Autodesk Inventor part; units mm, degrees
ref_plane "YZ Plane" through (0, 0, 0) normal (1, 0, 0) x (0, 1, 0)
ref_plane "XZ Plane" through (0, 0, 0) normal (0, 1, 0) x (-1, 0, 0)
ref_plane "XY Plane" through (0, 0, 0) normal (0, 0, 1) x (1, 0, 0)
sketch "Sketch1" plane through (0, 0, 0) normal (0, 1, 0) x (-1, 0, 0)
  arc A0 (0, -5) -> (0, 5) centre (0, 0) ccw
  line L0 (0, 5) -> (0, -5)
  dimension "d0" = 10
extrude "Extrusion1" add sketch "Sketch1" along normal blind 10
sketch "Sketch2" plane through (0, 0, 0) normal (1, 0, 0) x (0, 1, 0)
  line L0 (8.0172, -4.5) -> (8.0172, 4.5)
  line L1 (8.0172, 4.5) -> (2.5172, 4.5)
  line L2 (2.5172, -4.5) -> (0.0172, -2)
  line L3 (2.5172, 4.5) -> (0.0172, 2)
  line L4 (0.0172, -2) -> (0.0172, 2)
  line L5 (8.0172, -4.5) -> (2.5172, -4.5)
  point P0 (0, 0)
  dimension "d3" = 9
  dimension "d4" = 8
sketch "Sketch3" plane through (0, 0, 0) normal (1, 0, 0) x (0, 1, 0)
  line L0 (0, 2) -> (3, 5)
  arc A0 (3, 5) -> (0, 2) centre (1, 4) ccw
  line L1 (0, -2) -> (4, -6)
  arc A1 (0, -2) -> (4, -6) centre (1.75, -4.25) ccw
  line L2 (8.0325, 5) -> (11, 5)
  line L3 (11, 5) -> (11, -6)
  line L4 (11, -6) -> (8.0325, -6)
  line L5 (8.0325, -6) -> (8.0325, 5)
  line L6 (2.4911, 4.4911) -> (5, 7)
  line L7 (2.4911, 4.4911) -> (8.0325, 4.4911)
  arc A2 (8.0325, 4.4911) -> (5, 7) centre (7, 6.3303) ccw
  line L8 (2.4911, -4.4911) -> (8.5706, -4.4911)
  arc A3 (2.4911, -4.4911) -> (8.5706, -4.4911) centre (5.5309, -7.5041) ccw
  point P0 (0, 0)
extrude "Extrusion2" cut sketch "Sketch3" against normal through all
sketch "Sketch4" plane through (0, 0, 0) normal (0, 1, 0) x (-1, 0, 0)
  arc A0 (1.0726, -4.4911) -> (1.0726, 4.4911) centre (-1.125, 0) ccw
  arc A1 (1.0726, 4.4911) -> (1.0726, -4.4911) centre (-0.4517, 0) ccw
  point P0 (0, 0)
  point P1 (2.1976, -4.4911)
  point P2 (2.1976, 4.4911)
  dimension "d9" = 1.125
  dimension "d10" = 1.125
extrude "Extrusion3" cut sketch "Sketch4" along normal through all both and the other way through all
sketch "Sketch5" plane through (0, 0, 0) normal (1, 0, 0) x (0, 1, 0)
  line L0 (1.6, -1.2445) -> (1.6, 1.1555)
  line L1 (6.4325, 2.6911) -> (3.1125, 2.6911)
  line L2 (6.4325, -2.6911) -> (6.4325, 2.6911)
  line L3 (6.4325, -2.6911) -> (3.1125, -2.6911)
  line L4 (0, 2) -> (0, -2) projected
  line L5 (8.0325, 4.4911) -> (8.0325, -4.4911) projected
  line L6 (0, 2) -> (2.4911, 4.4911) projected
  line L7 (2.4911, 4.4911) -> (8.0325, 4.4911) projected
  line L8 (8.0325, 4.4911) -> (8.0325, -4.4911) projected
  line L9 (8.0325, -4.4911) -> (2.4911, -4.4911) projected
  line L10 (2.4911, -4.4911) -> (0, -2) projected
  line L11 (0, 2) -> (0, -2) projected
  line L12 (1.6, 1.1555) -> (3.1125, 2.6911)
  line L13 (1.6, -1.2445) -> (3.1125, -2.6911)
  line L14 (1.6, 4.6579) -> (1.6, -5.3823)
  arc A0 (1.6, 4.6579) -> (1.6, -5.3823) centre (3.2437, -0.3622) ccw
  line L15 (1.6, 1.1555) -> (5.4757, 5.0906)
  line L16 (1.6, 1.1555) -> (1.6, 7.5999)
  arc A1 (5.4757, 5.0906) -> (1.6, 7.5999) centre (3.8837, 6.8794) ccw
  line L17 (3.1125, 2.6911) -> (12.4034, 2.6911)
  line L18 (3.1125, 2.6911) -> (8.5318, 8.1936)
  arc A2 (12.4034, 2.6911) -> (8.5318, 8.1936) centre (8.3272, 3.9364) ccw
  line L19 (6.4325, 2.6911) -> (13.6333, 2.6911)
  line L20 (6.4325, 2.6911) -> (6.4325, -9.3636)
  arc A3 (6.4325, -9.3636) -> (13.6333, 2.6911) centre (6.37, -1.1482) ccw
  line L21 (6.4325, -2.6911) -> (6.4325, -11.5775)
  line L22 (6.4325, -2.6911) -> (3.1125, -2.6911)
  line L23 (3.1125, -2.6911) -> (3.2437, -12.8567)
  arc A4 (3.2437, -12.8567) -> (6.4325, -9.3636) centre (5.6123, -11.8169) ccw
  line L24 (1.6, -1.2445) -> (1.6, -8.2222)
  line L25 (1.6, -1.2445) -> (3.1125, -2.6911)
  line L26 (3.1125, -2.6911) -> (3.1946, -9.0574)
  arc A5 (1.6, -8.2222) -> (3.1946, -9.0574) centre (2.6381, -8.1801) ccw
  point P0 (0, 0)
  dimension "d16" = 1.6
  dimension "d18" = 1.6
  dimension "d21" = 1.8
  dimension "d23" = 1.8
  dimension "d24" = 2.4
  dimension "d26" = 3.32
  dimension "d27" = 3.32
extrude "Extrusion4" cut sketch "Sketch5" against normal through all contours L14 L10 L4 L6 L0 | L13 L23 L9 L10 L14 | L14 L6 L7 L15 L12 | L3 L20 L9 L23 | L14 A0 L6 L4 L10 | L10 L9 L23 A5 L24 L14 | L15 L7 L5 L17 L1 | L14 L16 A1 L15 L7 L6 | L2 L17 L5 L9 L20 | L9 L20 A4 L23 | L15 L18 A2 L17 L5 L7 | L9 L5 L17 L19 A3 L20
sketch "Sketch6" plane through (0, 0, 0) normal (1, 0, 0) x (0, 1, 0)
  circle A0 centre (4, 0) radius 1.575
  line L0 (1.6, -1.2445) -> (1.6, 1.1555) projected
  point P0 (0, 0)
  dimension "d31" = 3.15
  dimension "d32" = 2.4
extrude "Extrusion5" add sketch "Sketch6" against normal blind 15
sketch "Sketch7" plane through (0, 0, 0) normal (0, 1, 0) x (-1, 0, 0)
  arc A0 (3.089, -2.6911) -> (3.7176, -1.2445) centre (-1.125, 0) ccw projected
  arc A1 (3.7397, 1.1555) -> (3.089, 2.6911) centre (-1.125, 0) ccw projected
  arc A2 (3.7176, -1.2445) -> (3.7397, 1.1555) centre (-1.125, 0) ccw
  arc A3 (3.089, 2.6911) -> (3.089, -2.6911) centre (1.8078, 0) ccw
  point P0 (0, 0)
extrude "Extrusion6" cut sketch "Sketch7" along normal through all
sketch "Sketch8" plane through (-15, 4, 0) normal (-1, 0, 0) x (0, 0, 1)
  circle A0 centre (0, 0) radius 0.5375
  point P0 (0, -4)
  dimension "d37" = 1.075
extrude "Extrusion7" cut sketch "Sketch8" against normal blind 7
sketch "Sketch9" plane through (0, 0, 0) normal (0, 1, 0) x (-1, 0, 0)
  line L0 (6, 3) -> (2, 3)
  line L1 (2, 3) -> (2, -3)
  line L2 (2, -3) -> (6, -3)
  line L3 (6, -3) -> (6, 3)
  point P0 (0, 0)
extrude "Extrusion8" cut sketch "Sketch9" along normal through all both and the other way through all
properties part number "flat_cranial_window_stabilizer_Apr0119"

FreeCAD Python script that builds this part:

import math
import FreeCAD as App
import Part
import Sketcher
from FreeCAD import Vector
Q = App.Units.Quantity


def add_polygon(sketch, points):
    """Adds a closed chain of lines whose ends are joined by coincident constraints."""
    first, n = sketch.GeometryCount, len(points)
    for a, b in zip(points, points[1:] + points[:1]):
        sketch.addGeometry(Part.LineSegment(App.Vector(*a, 0), App.Vector(*b, 0)), False)
    for i in range(n):
        sketch.addConstraint(Sketcher.Constraint("Coincident", first + i, 2, first + (i + 1) % n, 1))

doc = App.newDocument("Part")
params = doc.addObject("Spreadsheet::Sheet", "Params")
for row, (alias, value) in enumerate([
    ("sketch1_radius", "5 mm"),
    ("pad1_length", "10 mm"),
    ("sketch2_height", "11 mm"),
    ("sketch2_radius", "4.28 mm"),
    ("sketch3_radius", "5 mm"),
    ("sketch4_height", "2.4 mm"),
    ("sketch4_width", "3.32 mm"),
    ("sketch4_width2", "1.23 mm"),
    ("sketch4_height2", "2.84 mm"),
    ("sketch4_height3", "5.02 mm"),
    ("sketch5_diameter", "3.15 mm"),
    ("pad2_length", "15 mm"),
    ("pocket5_length", "7 mm"),
    ("sketch8_width", "4 mm"),
    ("sketch8_height", "6 mm"),
], start=1):
    params.set(f"A{row}", alias)
    params.set(f"B{row}", "=" + value)
    params.setAlias(f"B{row}", alias)

body = doc.addObject("PartDesign::Body", "Body")

# Sketch on XZ plane
sketch1 = body.newObject("Sketcher::SketchObject", "Sketch")
sketch1.AttachmentSupport = (doc.getObject("XZ_Plane"), [""])
sketch1.MapMode = "FlatFace"
sketch1.addGeometry(Part.LineSegment(Vector(0, 5, 0), Vector(0, -5, 0)), False)
sketch1.addGeometry(Part.ArcOfCircle(Part.Circle(Vector(0, 0, 0), Vector(0, 0, 1), 5), math.radians(90), math.radians(270)), False)
sketch1.addConstraint(Sketcher.Constraint("Coincident", 0, 1, 1, 1))
sketch1.addConstraint(Sketcher.Constraint("Coincident", 1, 2, 0, 2))
sketch1.addConstraint(Sketcher.Constraint("Vertical", 0))
sketch1.addConstraint(Sketcher.Constraint("Coincident", 1, 3, -1, 1))
sketch1.addConstraint(Sketcher.Constraint("PointOnObject", 0, 1, -2))
sketch1.addConstraint(Sketcher.Constraint("Radius", 1, Q("5 mm")))
sketch1.setExpression("Constraints[5]", "Params.sketch1_radius")
pad1 = body.newObject("PartDesign::Pad", "Pad")
pad1.Profile = sketch1
pad1.setExpression("Length", "Params.pad1_length")
pad1.Reversed = True

# Sketch on YZ plane
sketch2 = body.newObject("Sketcher::SketchObject", "Sketch001")
sketch2.AttachmentSupport = (doc.getObject("YZ_Plane"), [""])
sketch2.MapMode = "FlatFace"
sketch2.addGeometry(Part.ArcOfCircle(Part.Circle(Vector(1, 4, 0), Vector(0, 0, 1), 2.2), math.radians(27), math.radians(243)), False)
sketch2.addGeometry(Part.LineSegment(Vector(0, 2, 0), Vector(2.5, 4.5, 0)), False)
sketch2.addGeometry(Part.LineSegment(Vector(2.5, 4.5, 0), Vector(8, 4.5, 0)), False)
sketch2.addGeometry(Part.LineSegment(Vector(8, 4.5, 0), Vector(8, -4.5, 0)), False)
sketch2.addGeometry(Part.LineSegment(Vector(8, -4.5, 0), Vector(2.5, -4.5, 0)), False)
sketch2.addGeometry(Part.LineSegment(Vector(2.5, -4.5, 0), Vector(0, -2, 0)), False)
sketch2.addGeometry(Part.ArcOfCircle(Part.Circle(Vector(1.8, -4.2, 0), Vector(0, 0, 1), 2.9), math.radians(128), math.radians(260)), False)
sketch2.addGeometry(Part.ArcOfCircle(Part.Circle(Vector(5.5, -7.5, 0), Vector(0, 0, 1), 4.3), math.radians(174), math.radians(381)), False)
sketch2.addGeometry(Part.LineSegment(Vector(9.5, -6, 0), Vector(11, -6, 0)), False)
sketch2.addGeometry(Part.LineSegment(Vector(11, -6, 0), Vector(11, 5, 0)), False)
sketch2.addGeometry(Part.LineSegment(Vector(11, 5, 0), Vector(8.6, 5, 0)), False)
sketch2.addGeometry(Part.ArcOfCircle(Part.Circle(Vector(7, 6.3, 0), Vector(0, 0, 1), 2.1), math.radians(-39), math.radians(161)), False)
sketch2.addGeometry(Part.LineSegment(Vector(5, 7, 0), Vector(3, 5, 0)), False)
sketch2.addConstraint(Sketcher.Constraint("Coincident", 0, 2, 1, 1))
sketch2.addConstraint(Sketcher.Constraint("Coincident", 1, 2, 2, 1))
sketch2.addConstraint(Sketcher.Constraint("Coincident", 2, 2, 3, 1))
sketch2.addConstraint(Sketcher.Constraint("Coincident", 3, 2, 4, 1))
sketch2.addConstraint(Sketcher.Constraint("Coincident", 4, 2, 5, 1))
sketch2.addConstraint(Sketcher.Constraint("Coincident", 5, 2, 6, 1))
sketch2.addConstraint(Sketcher.Constraint("Coincident", 6, 2, 7, 1))
sketch2.addConstraint(Sketcher.Constraint("Coincident", 7, 2, 8, 1))
sketch2.addConstraint(Sketcher.Constraint("Coincident", 8, 2, 9, 1))
sketch2.addConstraint(Sketcher.Constraint("Coincident", 9, 2, 10, 1))
sketch2.addConstraint(Sketcher.Constraint("Coincident", 10, 2, 11, 1))
sketch2.addConstraint(Sketcher.Constraint("Coincident", 11, 2, 12, 1))
sketch2.addConstraint(Sketcher.Constraint("Coincident", 12, 2, 0, 1))
sketch2.addConstraint(Sketcher.Constraint("Horizontal", 2))
sketch2.addConstraint(Sketcher.Constraint("Vertical", 3))
sketch2.addConstraint(Sketcher.Constraint("Horizontal", 4))
sketch2.addConstraint(Sketcher.Constraint("Horizontal", 8))
sketch2.addConstraint(Sketcher.Constraint("Vertical", 9))
sketch2.addConstraint(Sketcher.Constraint("Horizontal", 10))
sketch2.addConstraint(Sketcher.Constraint("Symmetric", 0, 2, 5, 2, -1, 1))
sketch2.addConstraint(Sketcher.Constraint("Symmetric", 1, 2, 4, 2, -1))
sketch2.addConstraint(Sketcher.Constraint("PointOnObject", 0, 2, -2))
sketch2.addConstraint(Sketcher.Constraint("Perpendicular", 1, 5))
sketch2.addConstraint(Sketcher.Constraint("Perpendicular", 5, 12))
sketch2.addConstraint(Sketcher.Constraint("Horizontal", 10, 2, 12, 2))
sketch2.addConstraint(Sketcher.Constraint("DistanceY", 9, 1, 9, 2, Q("11 mm")))
sketch2.addConstraint(Sketcher.Constraint("Radius", 7, Q("4.28 mm")))
sketch2.addConstraint(Sketcher.Constraint("DistanceX", -1, 1, 0, 3, Q("1 mm")))
sketch2.addConstraint(Sketcher.Constraint("DistanceY", -1, 1, 0, 3, Q("4 mm")))
sketch2.addConstraint(Sketcher.Constraint("DistanceX", -1, 1, 11, 3, Q("7 mm")))
sketch2.addConstraint(Sketcher.Constraint("DistanceY", -1, 1, 0, 2, Q("2 mm")))
sketch2.addConstraint(Sketcher.Constraint("DistanceY", 7, 2, -1, 1, Q("6 mm")))
sketch2.addConstraint(Sketcher.Constraint("DistanceX", -1, 1, 8, 2, Q("11 mm")))
sketch2.addConstraint(Sketcher.Constraint("DistanceX", -1, 1, 11, 2, Q("5 mm")))
sketch2.addConstraint(Sketcher.Constraint("Radius", 6, Q("2.8504 mm")))
sketch2.addConstraint(Sketcher.Constraint("Radius", 11, Q("2.1092 mm")))
sketch2.addConstraint(Sketcher.Constraint("DistanceX", -1, 1, 6, 3, Q("1.75 mm")))
sketch2.addConstraint(Sketcher.Constraint("Distance", 1, Q("3.523 mm")))
sketch2.addConstraint(Sketcher.Constraint("DistanceX", 2, 1, 2, 2, Q("5.5414 mm")))
sketch2.addConstraint(Sketcher.Constraint("DistanceX", 8, 1, 8, 2, Q("1.4622 mm")))
sketch2.addConstraint(Sketcher.Constraint("DistanceX", -1, 1, 7, 3, Q("5.531 mm")))
sketch2.setExpression("Constraints[25]", "Params.sketch2_height")
sketch2.setExpression("Constraints[26]", "Params.sketch2_radius")
pocket1 = body.newObject("PartDesign::Pocket", "Pocket")
pocket1.Profile = sketch2
pocket1.Type = "ThroughAll"

# Sketch on XZ plane
sketch3 = body.newObject("Sketcher::SketchObject", "Sketch002")
sketch3.AttachmentSupport = (doc.getObject("XZ_Plane"), [""])
sketch3.MapMode = "FlatFace"
sketch3.addGeometry(Part.ArcOfCircle(Part.Circle(Vector(0.5, 0, 0), Vector(0, 0, 1), 4.7), math.radians(-109), math.radians(109)), False)
sketch3.addGeometry(Part.ArcOfCircle(Part.Circle(Vector(1.1, 0, 0), Vector(0, 0, 1), 5), math.radians(116), math.radians(244)), False)
sketch3.addConstraint(Sketcher.Constraint("Coincident", 0, 1, 1, 2))
sketch3.addConstraint(Sketcher.Constraint("Coincident", 1, 1, 0, 2))
sketch3.addConstraint(Sketcher.Constraint("Symmetric", 0, 1, 1, 1, -1))
sketch3.addConstraint(Sketcher.Constraint("Radius", 1, Q("5 mm")))
sketch3.addConstraint(Sketcher.Constraint("DistanceX", -1, 1, 1, 3, Q("1.125 mm")))
sketch3.addConstraint(Sketcher.Constraint("Radius", 0, Q("4.7427 mm")))
sketch3.addConstraint(Sketcher.Constraint("DistanceY", 0, 1, -1, 1, Q("4.491 mm")))
sketch3.setExpression("Constraints[3]", "Params.sketch3_radius")
pocket2 = body.newObject("PartDesign::Pocket", "Pocket001")
pocket2.Profile = sketch3
pocket2.Type = "ThroughAll"

# Sketch on YZ plane
sketch4 = body.newObject("Sketcher::SketchObject", "Sketch003")
sketch4.AttachmentSupport = (doc.getObject("YZ_Plane"), [""])
sketch4.MapMode = "FlatFace"
sketch4.addGeometry(Part.ArcOfCircle(Part.Circle(Vector(3.2, -0.4, 0), Vector(0, 0, 1), 5.3), math.radians(108), math.radians(252)), False)  # 0
sketch4.addGeometry(Part.LineSegment(Vector(1.6, -5.4, 0), Vector(1.6, -8.2, 0)), False)  # 1
sketch4.addGeometry(Part.ArcOfCircle(Part.Circle(Vector(2.6, -8.2, 0), Vector(0, 0, 1), 1), math.radians(-178), math.radians(-58)), False)  # 2
sketch4.addGeometry(Part.LineSegment(Vector(3.2, -9.1, 0), Vector(3.2, -12.9, 0)), False)  # 3
sketch4.addGeometry(Part.ArcOfCircle(Part.Circle(Vector(5.6, -11.8, 0), Vector(0, 0, 1), 2.6), math.radians(-156), math.radians(72)), False)  # 4
sketch4.addGeometry(Part.ArcOfCircle(Part.Circle(Vector(6.4, -1.1, 0), Vector(0, 0, 1), 8.2), math.radians(-90), math.radians(28)), False)  # 5
sketch4.addGeometry(Part.LineSegment(Vector(13.6, 2.7, 0), Vector(12.4, 2.7, 0)), False)  # 6
sketch4.addGeometry(Part.ArcOfCircle(Part.Circle(Vector(8.3, 3.9, 0), Vector(0, 0, 1), 4.3), math.radians(-17), math.radians(87)), False)  # 7
sketch4.addGeometry(Part.LineSegment(Vector(8.5, 8.2, 0), Vector(5.5, 5.1, 0)), False)  # 8
sketch4.addGeometry(Part.ArcOfCircle(Part.Circle(Vector(3.9, 6.9, 0), Vector(0, 0, 1), 2.4), math.radians(-48), math.radians(162)), False)  # 9
sketch4.addGeometry(Part.LineSegment(Vector(1.6, 7.6, 0), Vector(1.6, 4.7, 0)), False)  # 10
add_polygon(sketch4, [(1.6, -1.2), (1.6, 1.2), (3.1, 2.7), (6.4, 2.7), (6.4, -2.7), (3.1, -2.7)])  # lines 11-16
sketch4.addConstraint(Sketcher.Constraint("Coincident", 0, 2, 1, 1))
sketch4.addConstraint(Sketcher.Constraint("Coincident", 1, 2, 2, 1))
sketch4.addConstraint(Sketcher.Constraint("Coincident", 2, 2, 3, 1))
sketch4.addConstraint(Sketcher.Constraint("Coincident", 3, 2, 4, 1))
sketch4.addConstraint(Sketcher.Constraint("Coincident", 4, 2, 5, 1))
sketch4.addConstraint(Sketcher.Constraint("Coincident", 5, 2, 6, 1))
sketch4.addConstraint(Sketcher.Constraint("Coincident", 6, 2, 7, 1))
sketch4.addConstraint(Sketcher.Constraint("Coincident", 7, 2, 8, 1))
sketch4.addConstraint(Sketcher.Constraint("Coincident", 8, 2, 9, 1))
sketch4.addConstraint(Sketcher.Constraint("Coincident", 9, 2, 10, 1))
sketch4.addConstraint(Sketcher.Constraint("Coincident", 10, 2, 0, 1))
sketch4.addConstraint(Sketcher.Constraint("Vertical", 1))
sketch4.addConstraint(Sketcher.Constraint("Horizontal", 6))
sketch4.addConstraint(Sketcher.Constraint("Vertical", 10))
sketch4.addConstraint(Sketcher.Constraint("Vertical", 11))
sketch4.addConstraint(Sketcher.Constraint("Horizontal", 13))
sketch4.addConstraint(Sketcher.Constraint("Vertical", 14))
sketch4.addConstraint(Sketcher.Constraint("Horizontal", 15))
sketch4.addConstraint(Sketcher.Constraint("Symmetric", 12, 2, 15, 2, -1))
sketch4.addConstraint(Sketcher.Constraint("Parallel", 8, 12))
sketch4.addConstraint(Sketcher.Constraint("Horizontal", 6, 2, 12, 2))
sketch4.addConstraint(Sketcher.Constraint("Vertical", 0, 3, 3, 2))
sketch4.addConstraint(Sketcher.Constraint("Vertical", 1, 2, 9, 2))
sketch4.addConstraint(Sketcher.Constraint("Vertical", 10, 2, 11, 2))
sketch4.addConstraint(Sketcher.Constraint("Vertical", 4, 2, 13, 2))
sketch4.addConstraint(Sketcher.Constraint("DistanceY", 11, 1, 11, 2, Q("2.4 mm")))
sketch4.addConstraint(Sketcher.Constraint("DistanceX", 13, 1, 13, 2, Q("3.32 mm")))
sketch4.addConstraint(Sketcher.Constraint("DistanceX", -1, 1, 0, 2, Q("1.6 mm")))
sketch4.addConstraint(Sketcher.Constraint("Radius", 2, Q("1.039 mm")))
sketch4.addConstraint(Sketcher.Constraint("DistanceX", 6, 2, 6, 1, Q("1.23 mm")))
sketch4.addConstraint(Sketcher.Constraint("DistanceY", 1, 2, 1, 1, Q("2.84 mm")))
sketch4.addConstraint(Sketcher.Constraint("DistanceY", -1, 1, 9, 2, Q("7.6 mm")))
sketch4.addConstraint(Sketcher.Constraint("Angle", 3, Q("-89.2606 deg")))
sketch4.addConstraint(Sketcher.Constraint("Radius", 0, Q("5.2823 mm")))
sketch4.addConstraint(Sketcher.Constraint("Radius", 4, Q("2.5868 mm")))
sketch4.addConstraint(Sketcher.Constraint("Radius", 5, Q("8.2156 mm")))
sketch4.addConstraint(Sketcher.Constraint("Radius", 7, Q("4.2622 mm")))
sketch4.addConstraint(Sketcher.Constraint("Radius", 9, Q("2.3946 mm")))
sketch4.addConstraint(Sketcher.Constraint("DistanceY", 12, 2, 8, 2, Q("2.3995 mm")))
sketch4.addConstraint(Sketcher.Constraint("DistanceY", 10, 2, 10, 1, Q("2.942 mm")))
sketch4.addConstraint(Sketcher.Constraint("DistanceY", 2, 3, -1, 1, Q("8.18 mm")))
sketch4.addConstraint(Sketcher.Constraint("DistanceX", -1, 1, 5, 3, Q("6.37 mm")))
sketch4.addConstraint(Sketcher.Constraint("DistanceX", 0, 3, 9, 3, Q("0.64 mm")))
sketch4.addConstraint(Sketcher.Constraint("DistanceY", 0, 2, 0, 3, Q("5.02 mm")))
sketch4.addConstraint(Sketcher.Constraint("Distance", 16, Q("2.093 mm")))
sketch4.addConstraint(Sketcher.Constraint("DistanceY", 14, 2, 14, 1, Q("5.3822 mm")))
sketch4.addConstraint(Sketcher.Constraint("DistanceY", 4, 3, -1, 1, Q("11.817 mm")))
sketch4.addConstraint(Sketcher.Constraint("DistanceY", 5, 3, 0, 3, Q("0.786 mm")))
sketch4.addConstraint(Sketcher.Constraint("DistanceX", 2, 3, 7, 3, Q("5.689 mm")))
sketch4.addConstraint(Sketcher.Constraint("DistanceX", 4, 3, 7, 3, Q("2.715 mm")))
sketch4.setExpression("Constraints[31]", "Params.sketch4_height")
sketch4.setExpression("Constraints[32]", "Params.sketch4_width")
sketch4.setExpression("Constraints[35]", "Params.sketch4_width2")
sketch4.setExpression("Constraints[36]", "Params.sketch4_height2")
sketch4.setExpression("Constraints[49]", "Params.sketch4_height3")
pocket3 = body.newObject("PartDesign::Pocket", "Pocket002")
pocket3.Profile = sketch4
pocket3.Type = "ThroughAll"

# Sketch on YZ plane
sketch5 = body.newObject("Sketcher::SketchObject", "Sketch004")
sketch5.AttachmentSupport = (doc.getObject("YZ_Plane"), [""])
sketch5.MapMode = "FlatFace"
sketch5.addGeometry(Part.Circle(Vector(4, 0, 0), Vector(0, 0, 1), 1.6), False)
sketch5.addConstraint(Sketcher.Constraint("PointOnObject", 0, 3, -1))
sketch5.addConstraint(Sketcher.Constraint("Diameter", 0, Q("3.15 mm")))
sketch5.addConstraint(Sketcher.Constraint("DistanceX", -1, 1, 0, 3, Q("4 mm")))
sketch5.setExpression("Constraints[1]", "Params.sketch5_diameter")
pad2 = body.newObject("PartDesign::Pad", "Pad001")
pad2.Profile = sketch5
pad2.setExpression("Length", "Params.pad2_length")
pad2.Reversed = True

# Sketch on XZ plane
sketch6 = body.newObject("Sketcher::SketchObject", "Sketch005")
sketch6.AttachmentSupport = (doc.getObject("XZ_Plane"), [""])
sketch6.MapMode = "FlatFace"
sketch6.addGeometry(Part.ArcOfCircle(Part.Circle(Vector(-1.8, 0, 0), Vector(0, 0, 1), 3), math.radians(-115), math.radians(115)), False)
sketch6.addGeometry(Part.ArcOfCircle(Part.Circle(Vector(1.1, 0, 0), Vector(0, 0, 1), 5), math.radians(-165.59), math.radians(-147.44)), False)
sketch6.addGeometry(Part.ArcOfCircle(Part.Circle(Vector(1.1, 0, 0), Vector(0, 0, 1), 5), math.radians(167), math.radians(194)), False)
sketch6.addGeometry(Part.ArcOfCircle(Part.Circle(Vector(1.1, 0, 0), Vector(0, 0, 1), 5), math.radians(147.43), math.radians(166.64)), False)
sketch6.addConstraint(Sketcher.Constraint("Coincident", 0, 1, 1, 2))
sketch6.addConstraint(Sketcher.Constraint("Tangent", 1, 1, 2, 2))
sketch6.addConstraint(Sketcher.Constraint("Tangent", 2, 1, 3, 2))
sketch6.addConstraint(Sketcher.Constraint("Coincident", 3, 1, 0, 2))
sketch6.addConstraint(Sketcher.Constraint("Symmetric", 0, 1, 3, 1, -1))
sketch6.addConstraint(Sketcher.Constraint("Radius", 1, Q("4.999 mm")))
sketch6.addConstraint(Sketcher.Constraint("Radius", 0, Q("2.9805 mm")))
sketch6.addConstraint(Sketcher.Constraint("Radius", 2, Q("5.0015 mm")))
sketch6.addConstraint(Sketcher.Constraint("Radius", 3, Q("4.9977 mm")))
sketch6.addConstraint(Sketcher.Constraint("DistanceY", 1, 1, 2, 1, Q("2.4 mm")))
sketch6.addConstraint(Sketcher.Constraint("DistanceX", -1, 1, 1, 3, Q("1.124 mm")))
sketch6.addConstraint(Sketcher.Constraint("DistanceX", 0, 1, -1, 1, Q("3.089 mm")))
sketch6.addConstraint(Sketcher.Constraint("DistanceY", 1, 1, 1, 3, Q("1.244 mm")))
pocket4 = body.newObject("PartDesign::Pocket", "Pocket003")
pocket4.Profile = sketch6
pocket4.Type = "ThroughAll"

# Sketch on YZ plane
sketch7 = body.newObject("Sketcher::SketchObject", "Sketch006")
sketch7.AttachmentSupport = (doc.getObject("YZ_Plane"), [""])
sketch7.MapMode = "FlatFace"
sketch7.AttachmentOffset = App.Placement(Vector(0, 0, -15), App.Rotation())
sketch7.addGeometry(Part.Circle(Vector(4, 0, 0), Vector(0, 0, 1), 0.5), False)
sketch7.addConstraint(Sketcher.Constraint("PointOnObject", 0, 3, -1))
sketch7.addConstraint(Sketcher.Constraint("Diameter", 0, Q("1.075 mm")))
sketch7.addConstraint(Sketcher.Constraint("DistanceX", -1, 1, 0, 3, Q("4 mm")))
pocket5 = body.newObject("PartDesign::Pocket", "Pocket004")
pocket5.Profile = sketch7
pocket5.setExpression("Length", "Params.pocket5_length")
pocket5.Reversed = True

# Sketch on XZ plane
sketch8 = body.newObject("Sketcher::SketchObject", "Sketch007")
sketch8.AttachmentSupport = (doc.getObject("XZ_Plane"), [""])
sketch8.MapMode = "FlatFace"
add_polygon(sketch8, [(-6, -3), (-6, 3), (-2, 3), (-2, -3)])  # lines 0-3
sketch8.addConstraint(Sketcher.Constraint("Vertical", 0))
sketch8.addConstraint(Sketcher.Constraint("Horizontal", 1))
sketch8.addConstraint(Sketcher.Constraint("Vertical", 2))
sketch8.addConstraint(Sketcher.Constraint("Horizontal", 3))
sketch8.addConstraint(Sketcher.Constraint("DistanceX", 1, 1, 1, 2, Q("4 mm")))
sketch8.addConstraint(Sketcher.Constraint("DistanceY", 0, 1, 0, 2, Q("6 mm")))
sketch8.addConstraint(Sketcher.Constraint("DistanceX", 0, 2, -1, 1, Q("6 mm")))
sketch8.addConstraint(Sketcher.Constraint("DistanceY", -1, 1, 0, 2, Q("3 mm")))
sketch8.setExpression("Constraints[8]", "Params.sketch8_width")
sketch8.setExpression("Constraints[9]", "Params.sketch8_height")
pocket6 = body.newObject("PartDesign::Pocket", "Pocket005")
pocket6.Profile = sketch8
pocket6.Type = "ThroughAll"

doc.recompute()
